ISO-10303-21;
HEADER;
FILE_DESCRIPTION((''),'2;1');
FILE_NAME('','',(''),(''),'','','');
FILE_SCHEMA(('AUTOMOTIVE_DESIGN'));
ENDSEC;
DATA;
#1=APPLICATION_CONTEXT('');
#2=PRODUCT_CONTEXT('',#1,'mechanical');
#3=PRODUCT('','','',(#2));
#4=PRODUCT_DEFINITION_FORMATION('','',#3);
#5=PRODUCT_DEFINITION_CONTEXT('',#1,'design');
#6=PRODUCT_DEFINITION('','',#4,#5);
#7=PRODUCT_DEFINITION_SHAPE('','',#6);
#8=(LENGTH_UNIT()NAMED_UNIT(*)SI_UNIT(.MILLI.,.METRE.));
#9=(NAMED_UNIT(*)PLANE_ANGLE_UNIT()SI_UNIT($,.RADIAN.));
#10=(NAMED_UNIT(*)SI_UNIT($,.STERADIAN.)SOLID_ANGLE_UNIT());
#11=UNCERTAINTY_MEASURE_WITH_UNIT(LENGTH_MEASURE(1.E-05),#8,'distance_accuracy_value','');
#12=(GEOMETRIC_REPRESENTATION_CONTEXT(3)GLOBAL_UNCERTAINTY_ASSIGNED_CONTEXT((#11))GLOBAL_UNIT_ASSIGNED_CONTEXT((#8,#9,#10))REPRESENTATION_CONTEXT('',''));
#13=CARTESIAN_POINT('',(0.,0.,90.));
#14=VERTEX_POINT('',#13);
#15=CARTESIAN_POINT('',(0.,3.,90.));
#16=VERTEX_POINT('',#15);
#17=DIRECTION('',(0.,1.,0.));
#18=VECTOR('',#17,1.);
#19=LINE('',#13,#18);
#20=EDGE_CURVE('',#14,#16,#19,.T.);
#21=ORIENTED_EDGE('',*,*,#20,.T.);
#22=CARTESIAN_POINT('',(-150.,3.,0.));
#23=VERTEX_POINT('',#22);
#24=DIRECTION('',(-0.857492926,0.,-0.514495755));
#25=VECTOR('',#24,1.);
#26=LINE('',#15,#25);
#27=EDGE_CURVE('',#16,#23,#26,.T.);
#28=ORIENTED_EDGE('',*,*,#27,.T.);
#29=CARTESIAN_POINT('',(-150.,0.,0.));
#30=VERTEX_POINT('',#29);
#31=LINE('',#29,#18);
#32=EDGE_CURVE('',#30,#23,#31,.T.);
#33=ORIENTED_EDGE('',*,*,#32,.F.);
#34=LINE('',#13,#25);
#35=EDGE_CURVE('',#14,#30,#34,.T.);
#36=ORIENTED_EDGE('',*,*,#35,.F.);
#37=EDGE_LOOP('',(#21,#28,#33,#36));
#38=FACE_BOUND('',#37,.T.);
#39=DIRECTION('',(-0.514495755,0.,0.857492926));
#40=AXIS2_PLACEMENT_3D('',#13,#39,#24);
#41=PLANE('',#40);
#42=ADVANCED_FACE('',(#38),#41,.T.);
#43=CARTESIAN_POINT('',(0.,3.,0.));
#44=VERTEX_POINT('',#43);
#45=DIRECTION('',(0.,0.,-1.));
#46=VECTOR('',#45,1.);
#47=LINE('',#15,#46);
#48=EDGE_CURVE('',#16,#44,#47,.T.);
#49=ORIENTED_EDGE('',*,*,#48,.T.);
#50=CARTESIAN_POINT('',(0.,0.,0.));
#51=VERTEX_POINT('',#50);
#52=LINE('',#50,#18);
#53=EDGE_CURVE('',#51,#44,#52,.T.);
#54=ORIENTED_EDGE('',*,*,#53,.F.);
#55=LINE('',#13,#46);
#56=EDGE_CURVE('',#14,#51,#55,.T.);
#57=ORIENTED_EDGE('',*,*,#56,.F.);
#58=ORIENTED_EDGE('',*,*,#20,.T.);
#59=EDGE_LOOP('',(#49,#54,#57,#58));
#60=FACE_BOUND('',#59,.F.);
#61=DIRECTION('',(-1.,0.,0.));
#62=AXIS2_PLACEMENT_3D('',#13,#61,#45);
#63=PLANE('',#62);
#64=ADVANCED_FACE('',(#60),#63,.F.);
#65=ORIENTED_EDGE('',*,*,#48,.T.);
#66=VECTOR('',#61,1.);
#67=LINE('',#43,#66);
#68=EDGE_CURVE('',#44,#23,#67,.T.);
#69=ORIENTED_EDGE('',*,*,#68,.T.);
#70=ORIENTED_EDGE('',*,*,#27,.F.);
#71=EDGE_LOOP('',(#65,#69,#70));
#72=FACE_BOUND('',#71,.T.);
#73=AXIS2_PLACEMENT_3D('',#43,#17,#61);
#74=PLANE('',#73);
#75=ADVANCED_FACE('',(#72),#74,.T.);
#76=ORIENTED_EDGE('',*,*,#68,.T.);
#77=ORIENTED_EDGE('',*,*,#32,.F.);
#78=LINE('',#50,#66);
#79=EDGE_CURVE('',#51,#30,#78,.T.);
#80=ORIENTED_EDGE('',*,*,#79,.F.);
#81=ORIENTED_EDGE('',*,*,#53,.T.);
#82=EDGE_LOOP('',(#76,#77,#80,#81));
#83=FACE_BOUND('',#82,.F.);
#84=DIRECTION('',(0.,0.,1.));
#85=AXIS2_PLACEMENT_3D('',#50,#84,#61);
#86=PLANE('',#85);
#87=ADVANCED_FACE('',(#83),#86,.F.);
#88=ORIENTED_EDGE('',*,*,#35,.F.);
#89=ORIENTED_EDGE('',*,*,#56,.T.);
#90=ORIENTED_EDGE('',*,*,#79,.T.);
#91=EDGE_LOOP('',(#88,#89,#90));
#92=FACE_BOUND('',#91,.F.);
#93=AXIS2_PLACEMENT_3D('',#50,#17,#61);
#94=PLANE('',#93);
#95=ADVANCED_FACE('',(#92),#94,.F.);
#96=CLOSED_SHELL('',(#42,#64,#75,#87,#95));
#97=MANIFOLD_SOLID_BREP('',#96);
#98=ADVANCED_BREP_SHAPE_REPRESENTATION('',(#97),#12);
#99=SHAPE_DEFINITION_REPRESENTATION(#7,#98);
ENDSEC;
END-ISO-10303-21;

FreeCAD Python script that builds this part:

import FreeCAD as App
import Part
import Sketcher

V = App.Vector


def add_polygon(sketch, points):
    """Adds a closed chain of lines whose ends are joined by coincident constraints."""
    first, n = sketch.GeometryCount, len(points)
    for a, b in zip(points, points[1:] + points[:1]):
        sketch.addGeometry(Part.LineSegment(App.Vector(*a, 0), App.Vector(*b, 0)), False)
    for i in range(n):
        sketch.addConstraint(Sketcher.Constraint("Coincident", first + i, 2, first + (i + 1) % n, 1))

doc = App.newDocument("Part")
params = doc.addObject("Spreadsheet::Sheet", "Params")
for row, (alias, value) in enumerate([
    ("sketch1_width", "150 mm"),
    ("sketch1_height", "90 mm"),
    ("pad1_length", "3 mm"),
], start=1):
    params.set(f"A{row}", alias)
    params.set(f"B{row}", "=" + value)
    params.setAlias(f"B{row}", alias)

body = doc.addObject("PartDesign::Body", "Body")

sketch1 = body.newObject("Sketcher::SketchObject", "Sketch")
sketch1.AttachmentSupport = (doc.getObject("XZ_Plane"), [""])
sketch1.MapMode = "FlatFace"
add_polygon(sketch1, [(-150, 0), (0, 90), (0, 0)])
sketch1.addConstraint(Sketcher.Constraint("Vertical", 1))
sketch1.addConstraint(Sketcher.Constraint("Horizontal", 2))
sketch1.addConstraint(Sketcher.Constraint("Coincident", 1, 2, -1, 1))
sketch1.addConstraint(Sketcher.Constraint("DistanceX", 2, 2, 2, 1, 150.0))
sketch1.addConstraint(Sketcher.Constraint("DistanceY", 1, 2, 1, 1, 90.0))
sketch1.setExpression("Constraints[6]", "Params.sketch1_width")
sketch1.setExpression("Constraints[7]", "Params.sketch1_height")
pad1 = body.newObject("PartDesign::Pad", "Pad")
pad1.Profile = sketch1
pad1.setExpression("Length", "Params.pad1_length")
pad1.Reversed = True

doc.recompute()
